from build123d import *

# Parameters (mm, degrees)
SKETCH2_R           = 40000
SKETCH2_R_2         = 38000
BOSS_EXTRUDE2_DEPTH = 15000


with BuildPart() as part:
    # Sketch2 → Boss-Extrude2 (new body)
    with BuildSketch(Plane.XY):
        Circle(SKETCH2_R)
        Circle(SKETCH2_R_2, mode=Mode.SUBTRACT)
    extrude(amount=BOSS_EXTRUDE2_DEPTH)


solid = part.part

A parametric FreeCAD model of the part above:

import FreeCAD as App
import Part
import Sketcher

V = App.Vector

doc = App.newDocument("Part")
body = doc.addObject("PartDesign::Body", "Body")

# Sketch on XY plane
sketch1 = doc.addObject("Sketcher::SketchObject", "Sketch")
body.addObject(sketch1)
sketch1.AttachmentSupport = (doc.XY_Plane, [""])
sketch1.MapMode = "FlatFace"
sketch1.addGeometry(Part.Circle(V(0, 0, 0), V(0, 0, 1), 40000), False)
sketch1.addGeometry(Part.Circle(V(0, 0, 0), V(0, 0, 1), 38000), False)
sketch1.addConstraint(Sketcher.Constraint("Coincident", 0, 3, -1, 1))
sketch1.addConstraint(Sketcher.Constraint("Coincident", 1, 3, -1, 1))
sketch1.addConstraint(Sketcher.Constraint("Diameter", 0, 80000.0))
sketch1.addConstraint(Sketcher.Constraint("Diameter", 1, 76000.0))
pad1 = doc.addObject("PartDesign::Pad", "Pad")
body.addObject(pad1)
pad1.Profile = sketch1
pad1.Length = 15000

doc.recompute()
